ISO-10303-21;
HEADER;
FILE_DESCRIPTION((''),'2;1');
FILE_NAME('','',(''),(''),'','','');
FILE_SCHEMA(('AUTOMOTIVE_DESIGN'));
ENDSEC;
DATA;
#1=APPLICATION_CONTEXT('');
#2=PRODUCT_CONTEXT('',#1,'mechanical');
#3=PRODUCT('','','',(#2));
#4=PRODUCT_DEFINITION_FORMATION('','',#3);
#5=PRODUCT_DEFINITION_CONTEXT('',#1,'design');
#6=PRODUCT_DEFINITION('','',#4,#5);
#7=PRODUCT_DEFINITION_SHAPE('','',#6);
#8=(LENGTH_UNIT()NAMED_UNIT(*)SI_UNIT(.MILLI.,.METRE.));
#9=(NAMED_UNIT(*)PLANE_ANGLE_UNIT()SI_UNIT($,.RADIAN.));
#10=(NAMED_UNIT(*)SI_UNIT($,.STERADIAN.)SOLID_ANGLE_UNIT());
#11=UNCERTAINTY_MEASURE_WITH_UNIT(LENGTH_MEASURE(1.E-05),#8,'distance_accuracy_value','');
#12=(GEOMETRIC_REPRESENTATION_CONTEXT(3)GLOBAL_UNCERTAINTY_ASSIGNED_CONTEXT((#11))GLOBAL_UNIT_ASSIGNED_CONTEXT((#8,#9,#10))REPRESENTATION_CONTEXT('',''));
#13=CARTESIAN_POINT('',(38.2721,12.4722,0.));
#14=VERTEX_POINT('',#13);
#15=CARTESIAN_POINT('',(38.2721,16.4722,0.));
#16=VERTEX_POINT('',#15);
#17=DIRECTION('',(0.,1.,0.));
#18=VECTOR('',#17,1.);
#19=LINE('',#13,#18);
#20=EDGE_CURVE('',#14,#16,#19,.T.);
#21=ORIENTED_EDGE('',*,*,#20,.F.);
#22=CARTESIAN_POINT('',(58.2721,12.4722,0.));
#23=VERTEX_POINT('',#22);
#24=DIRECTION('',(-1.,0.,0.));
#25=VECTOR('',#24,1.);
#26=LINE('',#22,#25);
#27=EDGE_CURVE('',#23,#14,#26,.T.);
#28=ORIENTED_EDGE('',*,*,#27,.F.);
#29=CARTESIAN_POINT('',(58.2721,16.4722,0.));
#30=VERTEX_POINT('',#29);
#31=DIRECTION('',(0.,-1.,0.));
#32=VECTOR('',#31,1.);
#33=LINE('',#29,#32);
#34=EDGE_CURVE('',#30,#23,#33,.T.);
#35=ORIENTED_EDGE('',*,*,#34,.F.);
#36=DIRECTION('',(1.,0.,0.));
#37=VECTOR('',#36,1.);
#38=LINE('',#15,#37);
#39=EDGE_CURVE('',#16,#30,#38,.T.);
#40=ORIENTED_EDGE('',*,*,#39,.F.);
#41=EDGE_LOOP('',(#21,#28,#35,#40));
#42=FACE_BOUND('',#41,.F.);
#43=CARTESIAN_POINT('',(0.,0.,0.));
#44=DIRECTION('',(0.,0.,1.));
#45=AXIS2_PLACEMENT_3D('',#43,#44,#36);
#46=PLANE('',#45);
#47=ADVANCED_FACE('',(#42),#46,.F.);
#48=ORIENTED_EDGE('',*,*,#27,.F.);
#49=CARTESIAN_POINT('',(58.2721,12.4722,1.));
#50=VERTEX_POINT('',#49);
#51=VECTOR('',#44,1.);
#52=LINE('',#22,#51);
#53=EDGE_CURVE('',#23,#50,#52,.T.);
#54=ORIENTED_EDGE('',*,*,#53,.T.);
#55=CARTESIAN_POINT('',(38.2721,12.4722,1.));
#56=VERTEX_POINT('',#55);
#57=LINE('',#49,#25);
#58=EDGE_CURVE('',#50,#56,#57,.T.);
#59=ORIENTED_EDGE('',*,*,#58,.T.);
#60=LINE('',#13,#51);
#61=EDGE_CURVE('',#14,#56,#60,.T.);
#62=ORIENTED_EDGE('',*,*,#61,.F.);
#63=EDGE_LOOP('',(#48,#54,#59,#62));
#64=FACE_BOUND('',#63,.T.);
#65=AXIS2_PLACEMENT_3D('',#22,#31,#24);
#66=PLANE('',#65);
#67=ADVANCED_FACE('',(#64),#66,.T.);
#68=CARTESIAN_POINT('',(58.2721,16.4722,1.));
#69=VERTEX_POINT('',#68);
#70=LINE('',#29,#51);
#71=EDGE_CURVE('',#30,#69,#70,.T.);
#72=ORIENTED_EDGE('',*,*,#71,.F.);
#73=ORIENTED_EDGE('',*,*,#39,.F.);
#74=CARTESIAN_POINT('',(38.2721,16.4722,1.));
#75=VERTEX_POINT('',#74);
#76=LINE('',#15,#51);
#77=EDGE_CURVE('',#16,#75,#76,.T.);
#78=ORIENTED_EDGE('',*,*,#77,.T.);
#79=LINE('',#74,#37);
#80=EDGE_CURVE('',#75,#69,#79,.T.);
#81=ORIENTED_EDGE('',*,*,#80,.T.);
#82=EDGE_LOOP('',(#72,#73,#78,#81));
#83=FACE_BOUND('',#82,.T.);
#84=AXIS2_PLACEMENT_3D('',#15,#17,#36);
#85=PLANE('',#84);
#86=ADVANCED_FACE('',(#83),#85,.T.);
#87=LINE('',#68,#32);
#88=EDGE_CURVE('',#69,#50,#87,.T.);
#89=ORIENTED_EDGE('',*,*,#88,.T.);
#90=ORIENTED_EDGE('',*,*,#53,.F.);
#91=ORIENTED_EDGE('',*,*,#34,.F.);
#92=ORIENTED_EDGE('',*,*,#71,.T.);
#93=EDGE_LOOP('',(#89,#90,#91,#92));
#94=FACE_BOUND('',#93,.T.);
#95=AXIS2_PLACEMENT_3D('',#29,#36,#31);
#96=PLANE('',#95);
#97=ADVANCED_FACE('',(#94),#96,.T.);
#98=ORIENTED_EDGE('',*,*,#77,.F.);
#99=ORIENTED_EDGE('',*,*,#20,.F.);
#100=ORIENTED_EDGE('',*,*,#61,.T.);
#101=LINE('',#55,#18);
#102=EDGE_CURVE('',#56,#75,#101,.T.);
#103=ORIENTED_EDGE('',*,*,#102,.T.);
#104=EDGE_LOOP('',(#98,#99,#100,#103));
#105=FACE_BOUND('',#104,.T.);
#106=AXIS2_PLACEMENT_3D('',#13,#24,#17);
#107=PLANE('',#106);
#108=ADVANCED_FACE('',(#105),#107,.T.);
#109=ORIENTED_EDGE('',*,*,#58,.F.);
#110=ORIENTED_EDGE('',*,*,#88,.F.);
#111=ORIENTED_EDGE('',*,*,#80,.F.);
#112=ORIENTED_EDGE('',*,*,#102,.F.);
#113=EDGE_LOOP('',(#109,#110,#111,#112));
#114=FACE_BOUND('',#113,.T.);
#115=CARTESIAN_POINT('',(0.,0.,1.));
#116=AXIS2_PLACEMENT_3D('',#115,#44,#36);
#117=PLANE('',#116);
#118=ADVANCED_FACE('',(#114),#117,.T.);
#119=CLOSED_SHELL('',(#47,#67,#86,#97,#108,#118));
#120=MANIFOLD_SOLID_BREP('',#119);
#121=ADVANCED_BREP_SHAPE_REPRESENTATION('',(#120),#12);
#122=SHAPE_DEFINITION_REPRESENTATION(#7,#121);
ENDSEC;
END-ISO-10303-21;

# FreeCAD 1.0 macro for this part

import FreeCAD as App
import Part
import Sketcher
from FreeCAD import Vector

doc = App.newDocument("Part")
body = doc.addObject("PartDesign::Body", "Body")

# Sketch on XY plane
sketch1 = doc.addObject("Sketcher::SketchObject", "Sketch")
body.addObject(sketch1)
sketch1.AttachmentSupport = (doc.XY_Plane, [""])
sketch1.MapMode = "FlatFace"
sketch1.addGeometry(Part.LineSegment(Vector(38.3, 12.5, 0), Vector(58.3, 12.5, 0)), False)
sketch1.addGeometry(Part.LineSegment(Vector(58.3, 12.5, 0), Vector(58.3, 16.5, 0)), False)
sketch1.addGeometry(Part.LineSegment(Vector(58.3, 16.5, 0), Vector(38.3, 16.5, 0)), False)
sketch1.addGeometry(Part.LineSegment(Vector(38.3, 16.5, 0), Vector(38.3, 12.5, 0)), False)
sketch1.addConstraint(Sketcher.Constraint("Coincident", 0, 2, 1, 1))
sketch1.addConstraint(Sketcher.Constraint("Coincident", 1, 2, 2, 1))
sketch1.addConstraint(Sketcher.Constraint("Coincident", 2, 2, 3, 1))
sketch1.addConstraint(Sketcher.Constraint("Coincident", 3, 2, 0, 1))
sketch1.addConstraint(Sketcher.Constraint("Horizontal", 0))
sketch1.addConstraint(Sketcher.Constraint("Vertical", 1))
sketch1.addConstraint(Sketcher.Constraint("Horizontal", 2))
sketch1.addConstraint(Sketcher.Constraint("Vertical", 3))
sketch1.addConstraint(Sketcher.Constraint("DistanceX", 0, 1, 0, 2, 20.0))
sketch1.addConstraint(Sketcher.Constraint("DistanceY", 1, 1, 1, 2, 4.0))
sketch1.addConstraint(Sketcher.Constraint("DistanceX", -1, 1, 0, 2, 58.272))
sketch1.addConstraint(Sketcher.Constraint("DistanceY", -1, 1, 0, 2, 12.4722))
pad1 = doc.addObject("PartDesign::Pad", "Pad")
body.addObject(pad1)
pad1.Profile = sketch1
pad1.Length = 1

doc.recompute()
